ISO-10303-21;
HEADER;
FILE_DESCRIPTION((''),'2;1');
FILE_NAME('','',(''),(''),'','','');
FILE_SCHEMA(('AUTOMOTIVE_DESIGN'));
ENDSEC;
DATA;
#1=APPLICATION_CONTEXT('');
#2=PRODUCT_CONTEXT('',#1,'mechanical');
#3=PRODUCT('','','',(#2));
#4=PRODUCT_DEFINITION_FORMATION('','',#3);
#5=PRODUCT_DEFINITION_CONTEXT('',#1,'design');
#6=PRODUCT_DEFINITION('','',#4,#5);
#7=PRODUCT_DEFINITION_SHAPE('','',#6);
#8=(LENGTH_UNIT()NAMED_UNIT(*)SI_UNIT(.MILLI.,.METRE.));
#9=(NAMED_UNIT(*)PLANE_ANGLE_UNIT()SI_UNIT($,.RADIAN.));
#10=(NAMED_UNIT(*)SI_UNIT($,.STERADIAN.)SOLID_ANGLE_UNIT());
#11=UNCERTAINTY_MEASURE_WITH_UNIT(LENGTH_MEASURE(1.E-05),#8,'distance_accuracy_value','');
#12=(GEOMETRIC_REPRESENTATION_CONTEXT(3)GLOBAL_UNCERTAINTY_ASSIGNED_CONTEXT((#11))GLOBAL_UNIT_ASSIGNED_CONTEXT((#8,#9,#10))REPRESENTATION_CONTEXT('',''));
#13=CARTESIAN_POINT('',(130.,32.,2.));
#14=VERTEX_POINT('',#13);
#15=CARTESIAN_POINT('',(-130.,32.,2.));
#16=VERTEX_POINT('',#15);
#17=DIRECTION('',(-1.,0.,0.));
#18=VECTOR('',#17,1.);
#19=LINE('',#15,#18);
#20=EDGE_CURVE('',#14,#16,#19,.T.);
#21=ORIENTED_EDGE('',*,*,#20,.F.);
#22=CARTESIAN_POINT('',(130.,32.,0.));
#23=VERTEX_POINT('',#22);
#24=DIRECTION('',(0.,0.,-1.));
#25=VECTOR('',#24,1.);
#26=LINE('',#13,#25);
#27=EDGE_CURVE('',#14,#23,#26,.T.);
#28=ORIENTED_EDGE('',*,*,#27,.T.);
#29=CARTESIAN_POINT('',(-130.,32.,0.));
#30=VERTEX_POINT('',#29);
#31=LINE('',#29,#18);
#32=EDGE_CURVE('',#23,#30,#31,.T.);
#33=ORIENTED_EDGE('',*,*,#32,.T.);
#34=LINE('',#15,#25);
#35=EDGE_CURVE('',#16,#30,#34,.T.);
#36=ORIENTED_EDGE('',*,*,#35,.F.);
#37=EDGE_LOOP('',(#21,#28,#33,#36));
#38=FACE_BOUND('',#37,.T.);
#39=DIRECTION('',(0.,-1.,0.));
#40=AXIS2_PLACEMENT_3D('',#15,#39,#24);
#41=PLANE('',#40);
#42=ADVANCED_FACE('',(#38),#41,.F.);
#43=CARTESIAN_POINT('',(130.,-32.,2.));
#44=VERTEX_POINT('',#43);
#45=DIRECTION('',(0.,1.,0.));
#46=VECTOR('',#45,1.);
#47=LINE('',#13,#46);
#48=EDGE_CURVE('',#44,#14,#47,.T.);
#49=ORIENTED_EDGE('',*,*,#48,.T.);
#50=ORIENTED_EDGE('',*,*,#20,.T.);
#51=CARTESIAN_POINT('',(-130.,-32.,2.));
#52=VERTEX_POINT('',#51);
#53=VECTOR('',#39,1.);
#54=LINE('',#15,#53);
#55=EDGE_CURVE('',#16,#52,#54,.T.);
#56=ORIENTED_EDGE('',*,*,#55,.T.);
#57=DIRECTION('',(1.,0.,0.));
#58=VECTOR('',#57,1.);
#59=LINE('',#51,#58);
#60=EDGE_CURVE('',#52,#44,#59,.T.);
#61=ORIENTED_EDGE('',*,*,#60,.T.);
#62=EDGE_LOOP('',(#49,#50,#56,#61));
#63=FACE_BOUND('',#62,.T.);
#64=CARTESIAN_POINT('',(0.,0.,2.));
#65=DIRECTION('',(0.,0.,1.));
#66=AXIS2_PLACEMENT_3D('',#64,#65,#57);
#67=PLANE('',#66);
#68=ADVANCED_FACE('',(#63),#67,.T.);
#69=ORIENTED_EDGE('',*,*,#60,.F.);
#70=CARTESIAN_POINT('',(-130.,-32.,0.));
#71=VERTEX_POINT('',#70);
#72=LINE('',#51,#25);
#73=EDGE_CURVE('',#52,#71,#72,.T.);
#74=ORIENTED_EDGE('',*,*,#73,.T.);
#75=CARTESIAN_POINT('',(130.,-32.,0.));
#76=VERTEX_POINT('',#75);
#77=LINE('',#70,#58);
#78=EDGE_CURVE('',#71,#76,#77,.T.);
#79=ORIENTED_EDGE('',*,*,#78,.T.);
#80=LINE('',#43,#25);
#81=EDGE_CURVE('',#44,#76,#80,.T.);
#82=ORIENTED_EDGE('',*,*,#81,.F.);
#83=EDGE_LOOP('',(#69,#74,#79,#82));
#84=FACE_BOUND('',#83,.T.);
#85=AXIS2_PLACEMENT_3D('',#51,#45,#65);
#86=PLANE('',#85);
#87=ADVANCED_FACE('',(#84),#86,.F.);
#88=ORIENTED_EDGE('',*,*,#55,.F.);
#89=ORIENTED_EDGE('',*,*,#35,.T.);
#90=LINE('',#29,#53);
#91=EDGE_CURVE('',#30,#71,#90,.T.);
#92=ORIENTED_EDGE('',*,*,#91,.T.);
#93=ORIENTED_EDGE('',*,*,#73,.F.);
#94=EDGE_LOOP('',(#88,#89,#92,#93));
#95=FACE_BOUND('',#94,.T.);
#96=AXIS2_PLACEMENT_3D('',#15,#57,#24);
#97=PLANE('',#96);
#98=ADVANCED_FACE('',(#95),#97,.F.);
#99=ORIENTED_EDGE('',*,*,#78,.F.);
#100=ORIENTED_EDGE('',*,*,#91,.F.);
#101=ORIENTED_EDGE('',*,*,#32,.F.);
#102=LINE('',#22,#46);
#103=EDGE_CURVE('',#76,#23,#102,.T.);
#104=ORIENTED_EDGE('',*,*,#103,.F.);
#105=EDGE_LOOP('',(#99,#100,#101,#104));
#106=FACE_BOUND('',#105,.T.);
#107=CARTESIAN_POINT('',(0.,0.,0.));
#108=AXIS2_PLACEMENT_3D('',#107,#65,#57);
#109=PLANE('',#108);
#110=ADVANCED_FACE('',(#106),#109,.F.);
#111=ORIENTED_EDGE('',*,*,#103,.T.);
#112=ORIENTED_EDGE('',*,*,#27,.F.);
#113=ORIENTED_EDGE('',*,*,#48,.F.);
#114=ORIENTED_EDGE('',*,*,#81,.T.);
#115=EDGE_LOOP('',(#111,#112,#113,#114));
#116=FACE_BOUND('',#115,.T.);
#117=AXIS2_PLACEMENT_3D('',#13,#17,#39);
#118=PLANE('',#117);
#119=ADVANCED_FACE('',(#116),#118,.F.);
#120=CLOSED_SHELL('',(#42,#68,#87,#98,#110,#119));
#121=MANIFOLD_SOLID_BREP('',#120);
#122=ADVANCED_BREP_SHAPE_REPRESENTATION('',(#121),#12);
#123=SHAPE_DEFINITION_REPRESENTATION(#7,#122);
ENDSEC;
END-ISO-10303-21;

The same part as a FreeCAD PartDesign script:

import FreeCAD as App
import Part
import Sketcher

V = App.Vector
Q = App.Units.Quantity

doc = App.newDocument("Part")
body = doc.addObject("PartDesign::Body", "Body")

sketch1 = doc.addObject("Sketcher::SketchObject", "Sketch")
body.addObject(sketch1)
sketch1.AttachmentSupport = (doc.XY_Plane, [""])
sketch1.MapMode = "FlatFace"
sketch1.addGeometry([
    Part.LineSegment(V(-130, 32, 0), V(-130, -32, 0)),
    Part.LineSegment(V(-130, -32, 0), V(130, -32, 0)),
    Part.LineSegment(V(130, -32, 0), V(130, 32, 0)),
    Part.LineSegment(V(130, 32, 0), V(-130, 32, 0)),
], False)
sketch1.addConstraint([
    Sketcher.Constraint("Coincident", 0, 2, 1, 1),
    Sketcher.Constraint("Coincident", 1, 2, 2, 1),
    Sketcher.Constraint("Coincident", 2, 2, 3, 1),
    Sketcher.Constraint("Coincident", 3, 2, 0, 1),
    Sketcher.Constraint("Vertical", 0),
    Sketcher.Constraint("Horizontal", 1),
    Sketcher.Constraint("Vertical", 2),
    Sketcher.Constraint("Horizontal", 3),
    Sketcher.Constraint("Symmetric", 0, 2, 2, 2, -1, 1),
    Sketcher.Constraint("DistanceX", 1, 1, 1, 2, Q("260 mm")),
    Sketcher.Constraint("DistanceY", 0, 2, 0, 1, Q("64 mm")),
])
pad1 = doc.addObject("PartDesign::Pad", "Pad")
body.addObject(pad1)
pad1.Profile = sketch1
pad1.Length = 2

doc.recompute()
